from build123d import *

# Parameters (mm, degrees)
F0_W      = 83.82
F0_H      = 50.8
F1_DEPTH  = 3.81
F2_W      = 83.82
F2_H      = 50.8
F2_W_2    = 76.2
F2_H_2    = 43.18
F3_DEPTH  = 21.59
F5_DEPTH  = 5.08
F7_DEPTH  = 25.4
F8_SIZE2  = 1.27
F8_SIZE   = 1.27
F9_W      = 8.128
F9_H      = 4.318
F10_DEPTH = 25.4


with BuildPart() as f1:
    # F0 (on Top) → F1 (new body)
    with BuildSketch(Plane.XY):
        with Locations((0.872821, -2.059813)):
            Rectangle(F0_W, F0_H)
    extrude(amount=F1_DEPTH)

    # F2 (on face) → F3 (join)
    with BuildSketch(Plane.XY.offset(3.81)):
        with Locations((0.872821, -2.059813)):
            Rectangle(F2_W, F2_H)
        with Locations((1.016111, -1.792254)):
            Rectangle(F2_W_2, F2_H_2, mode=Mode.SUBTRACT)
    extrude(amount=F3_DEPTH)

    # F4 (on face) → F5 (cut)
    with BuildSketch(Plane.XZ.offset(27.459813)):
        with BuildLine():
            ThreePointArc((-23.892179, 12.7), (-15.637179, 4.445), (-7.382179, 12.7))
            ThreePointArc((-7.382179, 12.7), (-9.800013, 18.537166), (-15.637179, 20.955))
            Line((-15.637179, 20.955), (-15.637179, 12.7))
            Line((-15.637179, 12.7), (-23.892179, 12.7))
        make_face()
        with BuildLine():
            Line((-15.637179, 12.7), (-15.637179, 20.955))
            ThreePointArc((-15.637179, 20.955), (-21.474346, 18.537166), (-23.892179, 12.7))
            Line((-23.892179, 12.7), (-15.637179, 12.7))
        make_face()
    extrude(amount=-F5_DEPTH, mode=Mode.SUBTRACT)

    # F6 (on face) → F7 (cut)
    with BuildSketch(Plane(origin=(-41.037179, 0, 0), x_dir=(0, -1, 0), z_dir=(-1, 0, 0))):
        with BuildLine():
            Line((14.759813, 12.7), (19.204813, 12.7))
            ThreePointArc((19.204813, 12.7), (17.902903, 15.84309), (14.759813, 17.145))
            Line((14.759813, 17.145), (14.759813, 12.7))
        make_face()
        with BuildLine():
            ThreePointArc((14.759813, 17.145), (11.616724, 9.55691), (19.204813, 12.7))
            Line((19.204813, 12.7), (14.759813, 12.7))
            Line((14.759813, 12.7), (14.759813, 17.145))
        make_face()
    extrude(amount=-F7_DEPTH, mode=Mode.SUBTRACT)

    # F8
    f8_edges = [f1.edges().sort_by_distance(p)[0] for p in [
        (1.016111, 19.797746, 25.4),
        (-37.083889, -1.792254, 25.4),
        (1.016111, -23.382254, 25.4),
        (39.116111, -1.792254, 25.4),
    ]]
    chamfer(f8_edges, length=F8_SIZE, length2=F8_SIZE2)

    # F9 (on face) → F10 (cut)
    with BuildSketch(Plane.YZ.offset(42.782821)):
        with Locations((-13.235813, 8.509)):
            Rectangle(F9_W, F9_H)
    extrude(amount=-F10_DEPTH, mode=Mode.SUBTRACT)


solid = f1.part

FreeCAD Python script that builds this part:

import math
import FreeCAD as App
import Part
import Sketcher
Q = App.Units.Quantity


def edges_at(feature, points):
    """Names of the edges that pass closest to the given points."""
    edges = feature.Shape.Edges
    near = lambda p: min(range(len(edges)), key=lambda i: edges[i].distToShape(Part.Vertex(*p))[0])
    return sorted({f"Edge{near(p) + 1}" for p in points})

doc = App.newDocument("Part")
body = doc.addObject("PartDesign::Body", "Body")

sketch1 = body.newObject("Sketcher::SketchObject", "Sketch")
sketch1.AttachmentSupport = (doc.getObject("XY_Plane"), [""])
sketch1.MapMode = "FlatFace"
sketch1.addGeometry([
    Part.LineSegment(App.Vector(-41.037179, 23.340187, 0), App.Vector(-41.037179, -27.459813, 0)),
    Part.LineSegment(App.Vector(-41.037179, -27.459813, 0), App.Vector(42.782821, -27.459813, 0)),
    Part.LineSegment(App.Vector(42.782821, -27.459813, 0), App.Vector(42.782821, 23.340187, 0)),
    Part.LineSegment(App.Vector(42.782821, 23.340187, 0), App.Vector(-41.037179, 23.340187, 0)),
], False)
sketch1.addConstraint([
    Sketcher.Constraint("Coincident", 0, 2, 1, 1),
    Sketcher.Constraint("Coincident", 1, 2, 2, 1),
    Sketcher.Constraint("Coincident", 2, 2, 3, 1),
    Sketcher.Constraint("Coincident", 3, 2, 0, 1),
    Sketcher.Constraint("Vertical", 0),
    Sketcher.Constraint("Horizontal", 1),
    Sketcher.Constraint("Vertical", 2),
    Sketcher.Constraint("Horizontal", 3),
    Sketcher.Constraint("DistanceY", 0, 2, 0, 1, Q("2 in")),
    Sketcher.Constraint("DistanceX", 1, 1, 1, 2, Q("3.3 in")),
    Sketcher.Constraint("DistanceX", 0, 2, -1, 1, Q("41.037179 mm")),
    Sketcher.Constraint("DistanceY", 0, 2, -1, 1, Q("27.459813 mm")),
])
pad1 = body.newObject("PartDesign::Pad", "Pad")
pad1.Profile = sketch1
pad1.Length = Q("0.15 in")

sketch2 = body.newObject("Sketcher::SketchObject", "Sketch001")
sketch2.AttachmentSupport = (doc.getObject("XY_Plane"), [""])
sketch2.MapMode = "FlatFace"
sketch2.AttachmentOffset = App.Placement(App.Vector(0, 0, 0.15 * 25.4), App.Rotation())
sketch2.addGeometry([
    Part.LineSegment(App.Vector(-41.037179, 23.340187, 0), App.Vector(-41.037179, -27.459813, 0)),
    Part.LineSegment(App.Vector(-41.037179, -27.459813, 0), App.Vector(42.782821, -27.459813, 0)),
    Part.LineSegment(App.Vector(42.782821, -27.459813, 0), App.Vector(42.782821, 23.340187, 0)),
    Part.LineSegment(App.Vector(42.782821, 23.340187, 0), App.Vector(-41.037179, 23.340187, 0)),
    Part.LineSegment(App.Vector(39.116111, -23.382254, 0), App.Vector(-37.083889, -23.382254, 0)),
    Part.LineSegment(App.Vector(-37.083889, -23.382254, 0), App.Vector(-37.083889, 19.797746, 0)),
    Part.LineSegment(App.Vector(-37.083889, 19.797746, 0), App.Vector(39.116111, 19.797746, 0)),
    Part.LineSegment(App.Vector(39.116111, 19.797746, 0), App.Vector(39.116111, -23.382254, 0)),
], False)
sketch2.addConstraint([
    Sketcher.Constraint("Coincident", 0, 2, 1, 1),
    Sketcher.Constraint("Coincident", 1, 2, 2, 1),
    Sketcher.Constraint("Coincident", 2, 2, 3, 1),
    Sketcher.Constraint("Coincident", 3, 2, 0, 1),
    Sketcher.Constraint("Coincident", 4, 2, 5, 1),
    Sketcher.Constraint("Coincident", 5, 2, 6, 1),
    Sketcher.Constraint("Coincident", 6, 2, 7, 1),
    Sketcher.Constraint("Coincident", 7, 2, 4, 1),
    Sketcher.Constraint("Vertical", 0),
    Sketcher.Constraint("Horizontal", 1),
    Sketcher.Constraint("Vertical", 2),
    Sketcher.Constraint("Horizontal", 3),
    Sketcher.Constraint("Horizontal", 4),
    Sketcher.Constraint("Vertical", 5),
    Sketcher.Constraint("Horizontal", 6),
    Sketcher.Constraint("Vertical", 7),
    Sketcher.Constraint("DistanceX", 4, 2, 4, 1, Q("3 in")),
    Sketcher.Constraint("DistanceY", 0, 2, 0, 1, Q("2 in")),
    Sketcher.Constraint("DistanceX", 1, 1, 1, 2, Q("3.3 in")),
    Sketcher.Constraint("DistanceY", 5, 1, 5, 2, Q("1.7 in")),
    Sketcher.Constraint("DistanceX", 0, 2, -1, 1, Q("41.037179 mm")),
    Sketcher.Constraint("DistanceX", 4, 2, -1, 1, Q("37.083889 mm")),
    Sketcher.Constraint("DistanceY", 0, 2, 4, 2, Q("4.077559 mm")),
    Sketcher.Constraint("DistanceY", 0, 2, -1, 1, Q("27.459813 mm")),
])
pad2 = body.newObject("PartDesign::Pad", "Pad001")
pad2.Profile = sketch2
pad2.Length = Q("0.85 in")

sketch3 = body.newObject("Sketcher::SketchObject", "Sketch002")
sketch3.AttachmentSupport = (doc.getObject("XZ_Plane"), [""])
sketch3.MapMode = "FlatFace"
sketch3.AttachmentOffset = App.Placement(App.Vector(0, 0, 27.459813), App.Rotation())
sketch3.addGeometry([
    Part.ArcOfCircle(Part.Circle(App.Vector(-15.637179, 12.7, 0), App.Vector(0, 0, 1), 8.255), math.radians(180), math.radians(360)),
    Part.ArcOfCircle(Part.Circle(App.Vector(-15.637181, 12.699998, 0), App.Vector(0, 0, 1), 8.255002), math.radians(0.000011), math.radians(89.999989)),
    Part.ArcOfCircle(Part.Circle(App.Vector(-15.637179, 12.7, 0), App.Vector(0, 0, 1), 8.255), math.radians(89.999999), math.radians(180.000001)),
], False)
sketch3.addConstraint([
    Sketcher.Constraint("Tangent", 0, 2, 1, 1),
    Sketcher.Constraint("Tangent", 1, 2, 2, 1),
    Sketcher.Constraint("Tangent", 2, 2, 0, 1),
    Sketcher.Constraint("Horizontal", 2, 3, 0, 2),
    Sketcher.Constraint("Horizontal", 0, 2, 2, 2),
    Sketcher.Constraint("Vertical", 2, 3, 1, 2),
    Sketcher.Constraint("Radius", 0, Q("0.325 in")),
    Sketcher.Constraint("DistanceY", -1, 1, 0, 3, Q("0.5 in")),
    Sketcher.Constraint("DistanceX", 0, 3, -1, 1, Q("15.637179 mm")),
])
pocket1 = body.newObject("PartDesign::Pocket", "Pocket")
pocket1.Profile = sketch3
pocket1.Length = Q("0.2 in")

sketch4 = body.newObject("Sketcher::SketchObject", "Sketch003")
sketch4.AttachmentSupport = (doc.getObject("YZ_Plane"), [""])
sketch4.MapMode = "FlatFace"
sketch4.AttachmentOffset = App.Placement(App.Vector(0, 0, -41.037179), App.Rotation())
sketch4.addGeometry([
    Part.ArcOfCircle(Part.Circle(App.Vector(-14.759814, 12.700001, 0), App.Vector(0, 0, 1), 4.444999), math.radians(89.999984), math.radians(180.000016)),
    Part.ArcOfCircle(Part.Circle(App.Vector(-14.759813, 12.7, 0), App.Vector(0, 0, 1), 4.445), math.radians(-179.999999), math.radians(89.999999)),
], False)
sketch4.addConstraint([
    Sketcher.Constraint("Tangent", 0, 1, 1, 2),
    Sketcher.Constraint("Coincident", 1, 1, 0, 2),
    Sketcher.Constraint("Horizontal", 0, 3, 1, 1),
    Sketcher.Constraint("Vertical", 1, 3, 0, 1),
    Sketcher.Constraint("Radius", 0, Q("0.175 in")),
    Sketcher.Constraint("DistanceY", -1, 1, 0, 3, Q("0.5 in")),
    Sketcher.Constraint("DistanceX", 0, 3, -1, 1, Q("14.759814 mm")),
])
pocket2 = body.newObject("PartDesign::Pocket", "Pocket001")
pocket2.Profile = sketch4
pocket2.Length = Q("1 in")
pocket2.Reversed = True
doc.recompute()

chamfer = body.newObject("PartDesign::Chamfer", "Chamfer")
chamfer.Base = (pocket2, edges_at(pocket2, [
    (1.016, 19.798, 25.4),
    (-37.084, -1.792, 25.4),
    (1.016, -23.382, 25.4),
    (39.116, -1.792, 25.4),
]))
chamfer.ChamferType = "Two distances"
chamfer.Size = Q("0.05 in")
chamfer.Size2 = Q("0.05 in")

sketch5 = body.newObject("Sketcher::SketchObject", "Sketch004")
sketch5.AttachmentSupport = (doc.getObject("YZ_Plane"), [""])
sketch5.MapMode = "FlatFace"
sketch5.AttachmentOffset = App.Placement(App.Vector(0, 0, 42.782821), App.Rotation())
sketch5.addGeometry([
    Part.LineSegment(App.Vector(-17.299813, 10.668, 0), App.Vector(-17.299813, 6.35, 0)),
    Part.LineSegment(App.Vector(-17.299813, 6.35, 0), App.Vector(-9.171813, 6.35, 0)),
    Part.LineSegment(App.Vector(-9.171813, 6.35, 0), App.Vector(-9.171813, 10.668, 0)),
    Part.LineSegment(App.Vector(-9.171813, 10.668, 0), App.Vector(-17.299813, 10.668, 0)),
], False)
sketch5.addConstraint([
    Sketcher.Constraint("Coincident", 0, 2, 1, 1),
    Sketcher.Constraint("Coincident", 1, 2, 2, 1),
    Sketcher.Constraint("Coincident", 2, 2, 3, 1),
    Sketcher.Constraint("Coincident", 3, 2, 0, 1),
    Sketcher.Constraint("Vertical", 0),
    Sketcher.Constraint("Horizontal", 1),
    Sketcher.Constraint("Vertical", 2),
    Sketcher.Constraint("Horizontal", 3),
    Sketcher.Constraint("DistanceX", 1, 1, 1, 2, Q("0.32 in")),
    Sketcher.Constraint("DistanceY", 0, 2, 0, 1, Q("0.17 in")),
    Sketcher.Constraint("DistanceY", -1, 1, 0, 2, Q("0.25 in")),
    Sketcher.Constraint("DistanceX", 0, 2, -1, 1, Q("17.299813 mm")),
])
pocket3 = body.newObject("PartDesign::Pocket", "Pocket002")
pocket3.Profile = sketch5
pocket3.Length = Q("1 in")

doc.recompute()
